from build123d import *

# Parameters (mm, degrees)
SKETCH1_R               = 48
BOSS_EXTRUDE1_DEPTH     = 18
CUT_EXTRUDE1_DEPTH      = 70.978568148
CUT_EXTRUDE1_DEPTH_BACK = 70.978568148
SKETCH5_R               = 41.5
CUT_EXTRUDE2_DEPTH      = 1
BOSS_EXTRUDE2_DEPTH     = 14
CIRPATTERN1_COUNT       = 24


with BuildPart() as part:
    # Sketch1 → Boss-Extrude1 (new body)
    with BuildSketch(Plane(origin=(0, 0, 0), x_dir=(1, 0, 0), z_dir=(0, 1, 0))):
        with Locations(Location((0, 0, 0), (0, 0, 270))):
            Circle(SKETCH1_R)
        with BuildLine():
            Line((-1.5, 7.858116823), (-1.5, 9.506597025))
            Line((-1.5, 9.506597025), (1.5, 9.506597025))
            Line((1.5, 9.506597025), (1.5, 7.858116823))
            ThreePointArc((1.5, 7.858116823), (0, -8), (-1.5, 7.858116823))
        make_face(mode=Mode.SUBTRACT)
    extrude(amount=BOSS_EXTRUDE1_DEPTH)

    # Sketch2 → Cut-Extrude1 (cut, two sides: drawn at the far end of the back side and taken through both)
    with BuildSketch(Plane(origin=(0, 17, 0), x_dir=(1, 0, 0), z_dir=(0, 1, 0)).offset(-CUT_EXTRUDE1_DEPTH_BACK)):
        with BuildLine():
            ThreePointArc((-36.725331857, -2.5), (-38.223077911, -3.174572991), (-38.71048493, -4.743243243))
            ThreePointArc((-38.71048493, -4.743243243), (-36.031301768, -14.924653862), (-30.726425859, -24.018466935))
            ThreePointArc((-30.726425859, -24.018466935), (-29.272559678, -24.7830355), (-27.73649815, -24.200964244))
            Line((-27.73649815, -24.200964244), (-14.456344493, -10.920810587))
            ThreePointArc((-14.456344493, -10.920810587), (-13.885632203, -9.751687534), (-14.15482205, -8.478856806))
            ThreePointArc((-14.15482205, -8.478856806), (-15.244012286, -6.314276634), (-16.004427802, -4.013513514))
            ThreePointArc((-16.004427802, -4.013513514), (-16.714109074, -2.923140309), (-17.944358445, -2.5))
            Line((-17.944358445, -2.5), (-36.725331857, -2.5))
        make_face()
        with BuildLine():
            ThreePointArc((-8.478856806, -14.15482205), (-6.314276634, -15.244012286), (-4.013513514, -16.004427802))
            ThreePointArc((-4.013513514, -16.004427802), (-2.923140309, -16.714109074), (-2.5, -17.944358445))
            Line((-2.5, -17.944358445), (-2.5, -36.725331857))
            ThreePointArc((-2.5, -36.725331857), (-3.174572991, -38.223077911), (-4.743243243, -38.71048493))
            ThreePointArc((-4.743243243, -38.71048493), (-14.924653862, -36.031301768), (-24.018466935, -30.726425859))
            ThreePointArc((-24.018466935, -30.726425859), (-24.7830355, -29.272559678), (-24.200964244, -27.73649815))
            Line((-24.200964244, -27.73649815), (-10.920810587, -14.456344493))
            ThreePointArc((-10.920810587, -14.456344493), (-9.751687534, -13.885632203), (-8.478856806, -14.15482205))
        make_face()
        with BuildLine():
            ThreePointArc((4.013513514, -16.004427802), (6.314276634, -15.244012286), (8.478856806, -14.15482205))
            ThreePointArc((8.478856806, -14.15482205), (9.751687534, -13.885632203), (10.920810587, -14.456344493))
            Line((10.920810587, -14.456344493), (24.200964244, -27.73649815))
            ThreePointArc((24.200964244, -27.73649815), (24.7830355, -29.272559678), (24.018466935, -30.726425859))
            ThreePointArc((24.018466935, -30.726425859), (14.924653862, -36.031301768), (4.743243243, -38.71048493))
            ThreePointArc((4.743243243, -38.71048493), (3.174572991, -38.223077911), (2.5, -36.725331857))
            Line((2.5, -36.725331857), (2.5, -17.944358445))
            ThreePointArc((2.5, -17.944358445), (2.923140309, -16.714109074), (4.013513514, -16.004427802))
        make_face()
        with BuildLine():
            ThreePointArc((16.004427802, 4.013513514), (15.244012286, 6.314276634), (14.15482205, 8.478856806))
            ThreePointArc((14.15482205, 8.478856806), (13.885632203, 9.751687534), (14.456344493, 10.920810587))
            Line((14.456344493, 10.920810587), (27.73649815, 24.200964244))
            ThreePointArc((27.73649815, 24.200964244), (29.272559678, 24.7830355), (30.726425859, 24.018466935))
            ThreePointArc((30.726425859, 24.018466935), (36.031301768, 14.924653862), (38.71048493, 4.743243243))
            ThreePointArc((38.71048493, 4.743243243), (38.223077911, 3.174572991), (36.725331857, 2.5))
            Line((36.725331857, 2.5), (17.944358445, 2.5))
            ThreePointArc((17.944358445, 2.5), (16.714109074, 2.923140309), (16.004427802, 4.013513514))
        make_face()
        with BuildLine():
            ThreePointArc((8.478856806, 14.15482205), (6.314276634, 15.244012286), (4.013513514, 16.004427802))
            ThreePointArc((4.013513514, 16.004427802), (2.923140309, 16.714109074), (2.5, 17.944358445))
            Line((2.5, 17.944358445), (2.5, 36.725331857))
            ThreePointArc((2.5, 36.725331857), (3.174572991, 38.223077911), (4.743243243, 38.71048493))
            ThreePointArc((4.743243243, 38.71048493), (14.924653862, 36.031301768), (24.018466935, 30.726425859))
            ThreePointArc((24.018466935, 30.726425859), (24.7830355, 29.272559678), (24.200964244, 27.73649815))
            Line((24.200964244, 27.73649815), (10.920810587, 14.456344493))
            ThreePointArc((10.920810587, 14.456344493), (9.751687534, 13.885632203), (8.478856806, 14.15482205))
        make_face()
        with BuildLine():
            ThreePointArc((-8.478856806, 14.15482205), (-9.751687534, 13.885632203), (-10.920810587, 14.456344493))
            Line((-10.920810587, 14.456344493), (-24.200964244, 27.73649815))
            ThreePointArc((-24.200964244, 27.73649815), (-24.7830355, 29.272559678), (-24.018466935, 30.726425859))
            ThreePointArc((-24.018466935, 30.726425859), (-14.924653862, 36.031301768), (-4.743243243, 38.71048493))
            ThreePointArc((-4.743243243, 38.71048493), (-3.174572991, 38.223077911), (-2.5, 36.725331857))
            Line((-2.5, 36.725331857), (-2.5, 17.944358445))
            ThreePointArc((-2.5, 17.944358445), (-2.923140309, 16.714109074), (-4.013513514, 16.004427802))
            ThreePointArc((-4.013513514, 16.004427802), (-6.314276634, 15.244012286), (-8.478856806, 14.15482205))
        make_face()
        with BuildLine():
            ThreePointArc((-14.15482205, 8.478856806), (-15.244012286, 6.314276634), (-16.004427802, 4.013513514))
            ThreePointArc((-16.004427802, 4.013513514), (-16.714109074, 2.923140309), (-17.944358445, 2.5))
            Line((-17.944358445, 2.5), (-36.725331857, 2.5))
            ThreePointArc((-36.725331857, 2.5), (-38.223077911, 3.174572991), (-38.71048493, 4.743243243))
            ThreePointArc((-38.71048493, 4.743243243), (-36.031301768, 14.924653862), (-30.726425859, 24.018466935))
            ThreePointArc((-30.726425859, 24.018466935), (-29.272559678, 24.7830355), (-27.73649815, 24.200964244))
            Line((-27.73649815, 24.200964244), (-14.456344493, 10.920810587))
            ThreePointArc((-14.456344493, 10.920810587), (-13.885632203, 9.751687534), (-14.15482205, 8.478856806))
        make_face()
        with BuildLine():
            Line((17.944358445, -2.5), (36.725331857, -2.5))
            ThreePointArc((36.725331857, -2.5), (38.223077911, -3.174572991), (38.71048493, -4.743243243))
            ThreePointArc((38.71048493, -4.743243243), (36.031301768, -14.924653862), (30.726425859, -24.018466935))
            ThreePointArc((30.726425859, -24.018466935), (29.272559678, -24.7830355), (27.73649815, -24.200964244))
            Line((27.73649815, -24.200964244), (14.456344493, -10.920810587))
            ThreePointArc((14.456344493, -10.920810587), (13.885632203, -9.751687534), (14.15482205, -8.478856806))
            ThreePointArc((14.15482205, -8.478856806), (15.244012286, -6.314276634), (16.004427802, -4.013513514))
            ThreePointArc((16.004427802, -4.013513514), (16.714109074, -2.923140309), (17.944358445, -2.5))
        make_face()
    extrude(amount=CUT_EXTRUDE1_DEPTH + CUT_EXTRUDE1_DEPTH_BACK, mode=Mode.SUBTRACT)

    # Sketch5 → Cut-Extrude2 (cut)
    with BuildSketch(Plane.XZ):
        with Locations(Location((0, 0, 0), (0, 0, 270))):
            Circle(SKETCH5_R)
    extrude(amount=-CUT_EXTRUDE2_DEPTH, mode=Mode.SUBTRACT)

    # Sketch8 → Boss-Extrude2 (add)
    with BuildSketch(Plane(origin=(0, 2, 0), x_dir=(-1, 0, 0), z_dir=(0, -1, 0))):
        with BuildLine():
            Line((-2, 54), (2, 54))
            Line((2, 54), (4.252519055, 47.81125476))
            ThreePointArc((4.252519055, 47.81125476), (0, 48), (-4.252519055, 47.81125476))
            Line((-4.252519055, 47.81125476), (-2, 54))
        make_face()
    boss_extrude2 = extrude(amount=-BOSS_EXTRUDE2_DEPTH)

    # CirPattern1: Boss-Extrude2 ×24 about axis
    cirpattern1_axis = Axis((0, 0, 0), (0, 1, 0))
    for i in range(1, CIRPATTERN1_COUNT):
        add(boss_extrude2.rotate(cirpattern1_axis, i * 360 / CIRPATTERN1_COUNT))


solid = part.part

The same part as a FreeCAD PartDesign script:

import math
import FreeCAD as App
import Part
import Sketcher
Q = App.Units.Quantity

doc = App.newDocument("Part")
body = doc.addObject("PartDesign::Body", "Body")

sketch1 = doc.addObject("Sketcher::SketchObject", "Sketch")
body.addObject(sketch1)
sketch1.AttachmentSupport = (doc.XZ_Plane, [""])
sketch1.MapMode = "FlatFace"
sketch1.addGeometry(Part.Circle(App.Vector(0, 0, 0), App.Vector(0, 0, 1), 48), False)
sketch1.addGeometry(Part.ArcOfCircle(Part.Circle(App.Vector(0, 0, 0), App.Vector(0, 0, 1), 8), math.radians(-79), math.radians(259)), False)
sketch1.addGeometry(Part.LineSegment(App.Vector(-1.5, -7.9, 0), App.Vector(-1.5, -9.5, 0)), False)
sketch1.addGeometry(Part.LineSegment(App.Vector(-1.5, -9.5, 0), App.Vector(1.5, -9.5, 0)), False)
sketch1.addGeometry(Part.LineSegment(App.Vector(1.5, -9.5, 0), App.Vector(1.5, -7.9, 0)), False)
sketch1.addConstraint(Sketcher.Constraint("Coincident", 1, 2, 2, 1))
sketch1.addConstraint(Sketcher.Constraint("Coincident", 2, 2, 3, 1))
sketch1.addConstraint(Sketcher.Constraint("Coincident", 3, 2, 4, 1))
sketch1.addConstraint(Sketcher.Constraint("Coincident", 4, 2, 1, 1))
sketch1.addConstraint(Sketcher.Constraint("Vertical", 2))
sketch1.addConstraint(Sketcher.Constraint("Horizontal", 3))
sketch1.addConstraint(Sketcher.Constraint("Vertical", 4))
sketch1.addConstraint(Sketcher.Constraint("Coincident", 0, 3, -1, 1))
sketch1.addConstraint(Sketcher.Constraint("Coincident", 1, 3, -1, 1))
sketch1.addConstraint(Sketcher.Constraint("Horizontal", 1, 2, 4, 2))
sketch1.addConstraint(Sketcher.Constraint("Diameter", 0, Q("96 mm")))
sketch1.addConstraint(Sketcher.Constraint("Radius", 1, Q("8 mm")))
sketch1.addConstraint(Sketcher.Constraint("DistanceX", 3, 1, 3, 2, Q("3 mm")))
sketch1.addConstraint(Sketcher.Constraint("DistanceY", 2, 2, 2, 1, Q("1.64848 mm")))
pad1 = doc.addObject("PartDesign::Pad", "Pad")
body.addObject(pad1)
pad1.Profile = sketch1
pad1.Length = 18
pad1.Reversed = True

sketch2 = doc.addObject("Sketcher::SketchObject", "Sketch001")
body.addObject(sketch2)
sketch2.AttachmentSupport = (doc.XZ_Plane, [""])
sketch2.MapMode = "FlatFace"
sketch2.AttachmentOffset = App.Placement(App.Vector(0, 0, -17), App.Rotation())
sketch2.addGeometry(Part.ArcOfCircle(Part.Circle(App.Vector(-36.7, 4.5, 0), App.Vector(0, 0, 1), 2), math.radians(173), math.radians(270)), False)
sketch2.addGeometry(Part.ArcOfCircle(Part.Circle(App.Vector(0, 0, 0), App.Vector(0, 0, 1), 39), math.radians(142), math.radians(173)), False)
sketch2.addGeometry(Part.ArcOfCircle(Part.Circle(App.Vector(-29.2, 22.8, 0), App.Vector(0, 0, 1), 2), math.radians(45), math.radians(142)), False)
sketch2.addGeometry(Part.LineSegment(App.Vector(-27.7, 24.2, 0), App.Vector(-14.5, 10.9, 0)), False)
sketch2.addGeometry(Part.ArcOfCircle(Part.Circle(App.Vector(-15.9, 9.5, 0), App.Vector(0, 0, 1), 2), math.radians(-31), math.radians(45)), False)
sketch2.addGeometry(Part.ArcOfCircle(Part.Circle(App.Vector(0, 0, 0), App.Vector(0, 0, 1), 16.5), math.radians(149.08), math.radians(165.92)), False)
sketch2.addGeometry(Part.ArcOfCircle(Part.Circle(App.Vector(-17.9, 4.5, 0), App.Vector(0, 0, 1), 2), math.radians(-90), math.radians(-14)), False)
sketch2.addGeometry(Part.LineSegment(App.Vector(-17.9, 2.5, 0), App.Vector(-36.7, 2.5, 0)), False)
sketch2.addGeometry(Part.ArcOfCircle(Part.Circle(App.Vector(0, 0, 0), App.Vector(0, 0, 1), 16.5), math.radians(104.08), math.radians(120.92)), False)
sketch2.addGeometry(Part.ArcOfCircle(Part.Circle(App.Vector(-9.5, 15.9, 0), App.Vector(0, 0, 1), 2), math.radians(-135), math.radians(-59)), False)
sketch2.addGeometry(Part.LineSegment(App.Vector(-10.9, 14.5, 0), App.Vector(-24.2, 27.7, 0)), False)
sketch2.addGeometry(Part.ArcOfCircle(Part.Circle(App.Vector(-22.8, 29.2, 0), App.Vector(0, 0, 1), 2), math.radians(128), math.radians(225)), False)
sketch2.addGeometry(Part.ArcOfCircle(Part.Circle(App.Vector(0, 0, 0), App.Vector(0, 0, 1), 39), math.radians(97), math.radians(128)), False)
sketch2.addGeometry(Part.ArcOfCircle(Part.Circle(App.Vector(-4.5, 36.7, 0), App.Vector(0, 0, 1), 2), math.radians(0), math.radians(97)), False)
sketch2.addGeometry(Part.LineSegment(App.Vector(-2.5, 36.7, 0), App.Vector(-2.5, 17.9, 0)), False)
sketch2.addGeometry(Part.ArcOfCircle(Part.Circle(App.Vector(-4.5, 17.9, 0), App.Vector(0, 0, 1), 2), math.radians(-76), math.radians(0)), False)
sketch2.addGeometry(Part.ArcOfCircle(Part.Circle(App.Vector(0, 0, 0), App.Vector(0, 0, 1), 16.5), math.radians(59.08), math.radians(75.92)), False)
sketch2.addGeometry(Part.ArcOfCircle(Part.Circle(App.Vector(4.5, 17.9, 0), App.Vector(0, 0, 1), 2), math.radians(180), math.radians(256)), False)
sketch2.addGeometry(Part.LineSegment(App.Vector(2.5, 17.9, 0), App.Vector(2.5, 36.7, 0)), False)
sketch2.addGeometry(Part.ArcOfCircle(Part.Circle(App.Vector(4.5, 36.7, 0), App.Vector(0, 0, 1), 2), math.radians(83), math.radians(180)), False)
sketch2.addGeometry(Part.ArcOfCircle(Part.Circle(App.Vector(0, 0, 0), App.Vector(0, 0, 1), 39), math.radians(52), math.radians(83)), False)
sketch2.addGeometry(Part.ArcOfCircle(Part.Circle(App.Vector(22.8, 29.2, 0), App.Vector(0, 0, 1), 2), math.radians(-45), math.radians(52)), False)
sketch2.addGeometry(Part.LineSegment(App.Vector(24.2, 27.7, 0), App.Vector(10.9, 14.5, 0)), False)
sketch2.addGeometry(Part.ArcOfCircle(Part.Circle(App.Vector(9.5, 15.9, 0), App.Vector(0, 0, 1), 2), math.radians(-121), math.radians(-45)), False)
sketch2.addGeometry(Part.ArcOfCircle(Part.Circle(App.Vector(0, 0, 0), App.Vector(0, 0, 1), 16.5), math.radians(-30.92), math.radians(-14.08)), False)
sketch2.addGeometry(Part.ArcOfCircle(Part.Circle(App.Vector(17.9, -4.5, 0), App.Vector(0, 0, 1), 2), math.radians(90), math.radians(166)), False)
sketch2.addGeometry(Part.LineSegment(App.Vector(17.9, -2.5, 0), App.Vector(36.7, -2.5, 0)), False)
sketch2.addGeometry(Part.ArcOfCircle(Part.Circle(App.Vector(36.7, -4.5, 0), App.Vector(0, 0, 1), 2), math.radians(-7), math.radians(90)), False)
sketch2.addGeometry(Part.ArcOfCircle(Part.Circle(App.Vector(0, 0, 0), App.Vector(0, 0, 1), 39), math.radians(-38), math.radians(-7)), False)
sketch2.addGeometry(Part.ArcOfCircle(Part.Circle(App.Vector(29.2, -22.8, 0), App.Vector(0, 0, 1), 2), math.radians(-135), math.radians(-38)), False)
sketch2.addGeometry(Part.LineSegment(App.Vector(27.7, -24.2, 0), App.Vector(14.5, -10.9, 0)), False)
sketch2.addGeometry(Part.ArcOfCircle(Part.Circle(App.Vector(15.9, -9.5, 0), App.Vector(0, 0, 1), 2), math.radians(149), math.radians(225)), False)
sketch2.addGeometry(Part.ArcOfCircle(Part.Circle(App.Vector(0, 0, 0), App.Vector(0, 0, 1), 16.5), math.radians(-75.92), math.radians(-59.08)), False)
sketch2.addGeometry(Part.ArcOfCircle(Part.Circle(App.Vector(9.5, -15.9, 0), App.Vector(0, 0, 1), 2), math.radians(45), math.radians(121)), False)
sketch2.addGeometry(Part.LineSegment(App.Vector(10.9, -14.5, 0), App.Vector(24.2, -27.7, 0)), False)
sketch2.addGeometry(Part.ArcOfCircle(Part.Circle(App.Vector(22.8, -29.2, 0), App.Vector(0, 0, 1), 2), math.radians(-52), math.radians(45)), False)
sketch2.addGeometry(Part.ArcOfCircle(Part.Circle(App.Vector(0, 0, 0), App.Vector(0, 0, 1), 39), math.radians(-83), math.radians(-52)), False)
sketch2.addGeometry(Part.ArcOfCircle(Part.Circle(App.Vector(4.5, -36.7, 0), App.Vector(0, 0, 1), 2), math.radians(-180), math.radians(-83)), False)
sketch2.addGeometry(Part.LineSegment(App.Vector(2.5, -36.7, 0), App.Vector(2.5, -17.9, 0)), False)
sketch2.addGeometry(Part.ArcOfCircle(Part.Circle(App.Vector(4.5, -17.9, 0), App.Vector(0, 0, 1), 2), math.radians(104), math.radians(180)), False)
sketch2.addGeometry(Part.ArcOfCircle(Part.Circle(App.Vector(-9.5, -15.9, 0), App.Vector(0, 0, 1), 2), math.radians(59), math.radians(135)), False)
sketch2.addGeometry(Part.ArcOfCircle(Part.Circle(App.Vector(0, 0, 0), App.Vector(0, 0, 1), 16.5), math.radians(-120.92), math.radians(-104.08)), False)
sketch2.addGeometry(Part.ArcOfCircle(Part.Circle(App.Vector(-4.5, -17.9, 0), App.Vector(0, 0, 1), 2), math.radians(0), math.radians(76)), False)
sketch2.addGeometry(Part.LineSegment(App.Vector(-2.5, -17.9, 0), App.Vector(-2.5, -36.7, 0)), False)
sketch2.addGeometry(Part.ArcOfCircle(Part.Circle(App.Vector(-4.5, -36.7, 0), App.Vector(0, 0, 1), 2), math.radians(-97), math.radians(0)), False)
sketch2.addGeometry(Part.ArcOfCircle(Part.Circle(App.Vector(0, 0, 0), App.Vector(0, 0, 1), 39), math.radians(-128), math.radians(-97)), False)
sketch2.addGeometry(Part.ArcOfCircle(Part.Circle(App.Vector(-22.8, -29.2, 0), App.Vector(0, 0, 1), 2), math.radians(135), math.radians(232)), False)
sketch2.addGeometry(Part.LineSegment(App.Vector(-24.2, -27.7, 0), App.Vector(-10.9, -14.5, 0)), False)
sketch2.addGeometry(Part.ArcOfCircle(Part.Circle(App.Vector(0, 0, 0), App.Vector(0, 0, 1), 16.5), math.radians(-165.92), math.radians(-149.08)), False)
sketch2.addGeometry(Part.ArcOfCircle(Part.Circle(App.Vector(-15.9, -9.5, 0), App.Vector(0, 0, 1), 2), math.radians(-45), math.radians(31)), False)
sketch2.addGeometry(Part.LineSegment(App.Vector(-14.5, -10.9, 0), App.Vector(-27.7, -24.2, 0)), False)
sketch2.addGeometry(Part.ArcOfCircle(Part.Circle(App.Vector(-29.2, -22.8, 0), App.Vector(0, 0, 1), 2), math.radians(-142), math.radians(-45)), False)
sketch2.addGeometry(Part.ArcOfCircle(Part.Circle(App.Vector(0, 0, 0), App.Vector(0, 0, 1), 39), math.radians(-173), math.radians(-142)), False)
sketch2.addGeometry(Part.ArcOfCircle(Part.Circle(App.Vector(-36.7, -4.5, 0), App.Vector(0, 0, 1), 2), math.radians(90), math.radians(187)), False)
sketch2.addGeometry(Part.LineSegment(App.Vector(-36.7, -2.5, 0), App.Vector(-17.9, -2.5, 0)), False)
sketch2.addGeometry(Part.ArcOfCircle(Part.Circle(App.Vector(-17.9, -4.5, 0), App.Vector(0, 0, 1), 2), math.radians(14), math.radians(90)), False)
sketch2.addGeometry(Part.LineSegment(App.Vector(36.7, 2.5, 0), App.Vector(17.9, 2.5, 0)), False)
sketch2.addGeometry(Part.ArcOfCircle(Part.Circle(App.Vector(17.9, 4.5, 0), App.Vector(0, 0, 1), 2), math.radians(-166), math.radians(-90)), False)
sketch2.addGeometry(Part.ArcOfCircle(Part.Circle(App.Vector(0, 0, 0), App.Vector(0, 0, 1), 16.5), math.radians(14.08), math.radians(30.92)), False)
sketch2.addGeometry(Part.ArcOfCircle(Part.Circle(App.Vector(15.9, 9.5, 0), App.Vector(0, 0, 1), 2), math.radians(135), math.radians(211)), False)
sketch2.addGeometry(Part.LineSegment(App.Vector(14.5, 10.9, 0), App.Vector(27.7, 24.2, 0)), False)
sketch2.addGeometry(Part.ArcOfCircle(Part.Circle(App.Vector(29.2, 22.8, 0), App.Vector(0, 0, 1), 2), math.radians(38), math.radians(135)), False)
sketch2.addGeometry(Part.ArcOfCircle(Part.Circle(App.Vector(0, 0, 0), App.Vector(0, 0, 1), 39), math.radians(7), math.radians(38)), False)
sketch2.addGeometry(Part.ArcOfCircle(Part.Circle(App.Vector(36.7, 4.5, 0), App.Vector(0, 0, 1), 2), math.radians(-90), math.radians(7)), False)
sketch2.addConstraint(Sketcher.Constraint("Tangent", 0, 1, 1, 2))
sketch2.addConstraint(Sketcher.Constraint("Tangent", 1, 1, 2, 2))
sketch2.addConstraint(Sketcher.Constraint("Tangent", 2, 1, 3, 1))
sketch2.addConstraint(Sketcher.Constraint("Tangent", 3, 2, 4, 2))
sketch2.addConstraint(Sketcher.Constraint("Tangent", 4, 1, 5, 1))
sketch2.addConstraint(Sketcher.Constraint("Tangent", 5, 2, 6, 2))
sketch2.addConstraint(Sketcher.Constraint("Tangent", 6, 1, 7, 1))
sketch2.addConstraint(Sketcher.Constraint("Tangent", 7, 2, 0, 2))
sketch2.addConstraint(Sketcher.Constraint("Tangent", 8, 2, 9, 2))
sketch2.addConstraint(Sketcher.Constraint("Tangent", 9, 1, 10, 1))
sketch2.addConstraint(Sketcher.Constraint("Tangent", 10, 2, 11, 2))
sketch2.addConstraint(Sketcher.Constraint("Tangent", 11, 1, 12, 2))
sketch2.addConstraint(Sketcher.Constraint("Tangent", 12, 1, 13, 2))
sketch2.addConstraint(Sketcher.Constraint("Tangent", 13, 1, 14, 1))
sketch2.addConstraint(Sketcher.Constraint("Tangent", 14, 2, 15, 2))
sketch2.addConstraint(Sketcher.Constraint("Tangent", 15, 1, 8, 1))
sketch2.addConstraint(Sketcher.Constraint("Tangent", 16, 2, 17, 2))
sketch2.addConstraint(Sketcher.Constraint("Tangent", 17, 1, 18, 1))
sketch2.addConstraint(Sketcher.Constraint("Tangent", 18, 2, 19, 2))
sketch2.addConstraint(Sketcher.Constraint("Tangent", 19, 1, 20, 2))
sketch2.addConstraint(Sketcher.Constraint("Tangent", 20, 1, 21, 2))
sketch2.addConstraint(Sketcher.Constraint("Tangent", 21, 1, 22, 1))
sketch2.addConstraint(Sketcher.Constraint("Tangent", 22, 2, 23, 2))
sketch2.addConstraint(Sketcher.Constraint("Tangent", 23, 1, 16, 1))
sketch2.addConstraint(Sketcher.Constraint("Tangent", 24, 2, 25, 2))
sketch2.addConstraint(Sketcher.Constraint("Tangent", 25, 1, 26, 1))
sketch2.addConstraint(Sketcher.Constraint("Tangent", 26, 2, 27, 2))
sketch2.addConstraint(Sketcher.Constraint("Tangent", 27, 1, 28, 2))
sketch2.addConstraint(Sketcher.Constraint("Tangent", 28, 1, 29, 2))
sketch2.addConstraint(Sketcher.Constraint("Tangent", 29, 1, 30, 1))
sketch2.addConstraint(Sketcher.Constraint("Tangent", 30, 2, 31, 2))
sketch2.addConstraint(Sketcher.Constraint("Tangent", 31, 1, 24, 1))
sketch2.addConstraint(Sketcher.Constraint("Tangent", 32, 2, 33, 2))
sketch2.addConstraint(Sketcher.Constraint("Tangent", 33, 1, 34, 1))
sketch2.addConstraint(Sketcher.Constraint("Tangent", 34, 2, 35, 2))
sketch2.addConstraint(Sketcher.Constraint("Tangent", 35, 1, 36, 2))
sketch2.addConstraint(Sketcher.Constraint("Tangent", 36, 1, 37, 2))
sketch2.addConstraint(Sketcher.Constraint("Tangent", 37, 1, 38, 1))
sketch2.addConstraint(Sketcher.Constraint("Tangent", 38, 2, 39, 2))
sketch2.addConstraint(Sketcher.Constraint("Tangent", 39, 1, 32, 1))
sketch2.addConstraint(Sketcher.Constraint("Tangent", 40, 1, 41, 1))
sketch2.addConstraint(Sketcher.Constraint("Tangent", 41, 2, 42, 2))
sketch2.addConstraint(Sketcher.Constraint("Tangent", 42, 1, 43, 1))
sketch2.addConstraint(Sketcher.Constraint("Tangent", 43, 2, 44, 2))
sketch2.addConstraint(Sketcher.Constraint("Tangent", 44, 1, 45, 2))
sketch2.addConstraint(Sketcher.Constraint("Tangent", 45, 1, 46, 2))
sketch2.addConstraint(Sketcher.Constraint("Tangent", 46, 1, 47, 1))
sketch2.addConstraint(Sketcher.Constraint("Tangent", 47, 2, 40, 2))
sketch2.addConstraint(Sketcher.Constraint("Tangent", 48, 2, 49, 2))
sketch2.addConstraint(Sketcher.Constraint("Tangent", 49, 1, 50, 1))
sketch2.addConstraint(Sketcher.Constraint("Tangent", 50, 2, 51, 2))
sketch2.addConstraint(Sketcher.Constraint("Tangent", 51, 1, 52, 2))
sketch2.addConstraint(Sketcher.Constraint("Tangent", 52, 1, 53, 2))
sketch2.addConstraint(Sketcher.Constraint("Tangent", 53, 1, 54, 1))
sketch2.addConstraint(Sketcher.Constraint("Tangent", 54, 2, 55, 2))
sketch2.addConstraint(Sketcher.Constraint("Tangent", 55, 1, 48, 1))
sketch2.addConstraint(Sketcher.Constraint("Tangent", 56, 2, 57, 2))
sketch2.addConstraint(Sketcher.Constraint("Tangent", 57, 1, 58, 1))
sketch2.addConstraint(Sketcher.Constraint("Tangent", 58, 2, 59, 2))
sketch2.addConstraint(Sketcher.Constraint("Tangent", 59, 1, 60, 1))
sketch2.addConstraint(Sketcher.Constraint("Tangent", 60, 2, 61, 2))
sketch2.addConstraint(Sketcher.Constraint("Tangent", 61, 1, 62, 2))
sketch2.addConstraint(Sketcher.Constraint("Tangent", 62, 1, 63, 2))
sketch2.addConstraint(Sketcher.Constraint("Tangent", 63, 1, 56, 1))
sketch2.addConstraint(Sketcher.Constraint("Horizontal", 7))
sketch2.addConstraint(Sketcher.Constraint("Vertical", 14))
sketch2.addConstraint(Sketcher.Constraint("Vertical", 18))
sketch2.addConstraint(Sketcher.Constraint("Horizontal", 26))
sketch2.addConstraint(Sketcher.Constraint("Vertical", 38))
sketch2.addConstraint(Sketcher.Constraint("Vertical", 43))
sketch2.addConstraint(Sketcher.Constraint("Horizontal", 54))
sketch2.addConstraint(Sketcher.Constraint("Horizontal", 56))
sketch2.addConstraint(Sketcher.Constraint("Coincident", 1, 3, -1, 1))
sketch2.addConstraint(Sketcher.Constraint("Coincident", 5, 3, -1, 1))
sketch2.addConstraint(Sketcher.Constraint("Coincident", 8, 3, -1, 1))
sketch2.addConstraint(Sketcher.Constraint("Coincident", 12, 3, -1, 1))
sketch2.addConstraint(Sketcher.Constraint("Coincident", 16, 3, -1, 1))
sketch2.addConstraint(Sketcher.Constraint("Coincident", 20, 3, -1, 1))
sketch2.addConstraint(Sketcher.Constraint("Coincident", 24, 3, -1, 1))
sketch2.addConstraint(Sketcher.Constraint("Coincident", 28, 3, -1, 1))
sketch2.addConstraint(Sketcher.Constraint("Coincident", 32, 3, -1, 1))
sketch2.addConstraint(Sketcher.Constraint("Coincident", 36, 3, -1, 1))
sketch2.addConstraint(Sketcher.Constraint("Coincident", 41, 3, -1, 1))
sketch2.addConstraint(Sketcher.Constraint("Coincident", 45, 3, -1, 1))
sketch2.addConstraint(Sketcher.Constraint("Coincident", 48, 3, -1, 1))
sketch2.addConstraint(Sketcher.Constraint("Coincident", 52, 3, -1, 1))
sketch2.addConstraint(Sketcher.Constraint("Coincident", 58, 3, -1, 1))
sketch2.addConstraint(Sketcher.Constraint("Coincident", 62, 3, -1, 1))
sketch2.addConstraint(Sketcher.Constraint("Equal", 0, 2))
sketch2.addConstraint(Sketcher.Constraint("Equal", 2, 4))
sketch2.addConstraint(Sketcher.Constraint("Equal", 4, 6))
sketch2.addConstraint(Sketcher.Constraint("Equal", 5, 8))
sketch2.addConstraint(Sketcher.Constraint("Equal", 6, 9))
sketch2.addConstraint(Sketcher.Constraint("Equal", 9, 11))
sketch2.addConstraint(Sketcher.Constraint("Equal", 1, 12))
sketch2.addConstraint(Sketcher.Constraint("Equal", 11, 13))
sketch2.addConstraint(Sketcher.Constraint("Equal", 13, 15))
sketch2.addConstraint(Sketcher.Constraint("Equal", 8, 16))
sketch2.addConstraint(Sketcher.Constraint("Equal", 15, 17))
sketch2.addConstraint(Sketcher.Constraint("Equal", 17, 19))
sketch2.addConstraint(Sketcher.Constraint("Equal", 12, 20))
sketch2.addConstraint(Sketcher.Constraint("Equal", 19, 21))
sketch2.addConstraint(Sketcher.Constraint("Equal", 21, 23))
sketch2.addConstraint(Sketcher.Constraint("Equal", 16, 24))
sketch2.addConstraint(Sketcher.Constraint("Equal", 23, 25))
sketch2.addConstraint(Sketcher.Constraint("Equal", 25, 27))
sketch2.addConstraint(Sketcher.Constraint("Equal", 20, 28))
sketch2.addConstraint(Sketcher.Constraint("Equal", 27, 29))
sketch2.addConstraint(Sketcher.Constraint("Equal", 29, 31))
sketch2.addConstraint(Sketcher.Constraint("Equal", 24, 32))
sketch2.addConstraint(Sketcher.Constraint("Equal", 31, 33))
sketch2.addConstraint(Sketcher.Constraint("Equal", 33, 35))
sketch2.addConstraint(Sketcher.Constraint("Equal", 28, 36))
sketch2.addConstraint(Sketcher.Constraint("Equal", 35, 37))
sketch2.addConstraint(Sketcher.Constraint("Equal", 37, 39))
sketch2.addConstraint(Sketcher.Constraint("Equal", 39, 40))
sketch2.addConstraint(Sketcher.Constraint("Equal", 32, 41))
sketch2.addConstraint(Sketcher.Constraint("Equal", 40, 42))
sketch2.addConstraint(Sketcher.Constraint("Equal", 42, 44))
sketch2.addConstraint(Sketcher.Constraint("Equal", 36, 45))
sketch2.addConstraint(Sketcher.Constraint("Equal", 44, 46))
sketch2.addConstraint(Sketcher.Constraint("Equal", 41, 48))
sketch2.addConstraint(Sketcher.Constraint("Equal", 46, 49))
sketch2.addConstraint(Sketcher.Constraint("Equal", 49, 51))
sketch2.addConstraint(Sketcher.Constraint("Equal", 45, 52))
sketch2.addConstraint(Sketcher.Constraint("Equal", 51, 53))
sketch2.addConstraint(Sketcher.Constraint("Equal", 53, 55))
sketch2.addConstraint(Sketcher.Constraint("Equal", 55, 57))
sketch2.addConstraint(Sketcher.Constraint("Equal", 48, 58))
sketch2.addConstraint(Sketcher.Constraint("Equal", 57, 59))
sketch2.addConstraint(Sketcher.Constraint("Equal", 59, 61))
sketch2.addConstraint(Sketcher.Constraint("Equal", 52, 62))
sketch2.addConstraint(Sketcher.Constraint("Equal", 61, 63))
sketch2.addConstraint(Sketcher.Constraint("Symmetric", 2, 1, 29, 1, -1, 1))
sketch2.addConstraint(Sketcher.Constraint("Symmetric", 9, 1, 33, 1, -1, 1))
sketch2.addConstraint(Sketcher.Constraint("Symmetric", 21, 1, 46, 1, -1, 1))
sketch2.addConstraint(Sketcher.Constraint("Symmetric", 49, 1, 59, 1, -1, 1))
sketch2.addConstraint(Sketcher.Constraint("Symmetric", 10, 2, 21, 1, -2))
sketch2.addConstraint(Sketcher.Constraint("Symmetric", 30, 2, 49, 1, -2))
sketch2.addConstraint(Sketcher.Constraint("Parallel", 3, 10))
sketch2.addConstraint(Sketcher.Constraint("Perpendicular", 10, 22))
sketch2.addConstraint(Sketcher.Constraint("Horizontal", 15, 3, 17, 3))
sketch2.addConstraint(Sketcher.Constraint("Horizontal", 39, 3, 42, 3))
sketch2.addConstraint(Sketcher.Constraint("Horizontal", 27, 3, 53, 3))
sketch2.addConstraint(Sketcher.Constraint("Horizontal", 6, 3, 57, 3))
sketch2.addConstraint(Sketcher.Constraint("Vertical", 19, 3, 37, 3))
sketch2.addConstraint(Sketcher.Constraint("Vertical", 0, 3, 53, 3))
sketch2.addConstraint(Sketcher.Constraint("Equal", 56, 14))
sketch2.addConstraint(Sketcher.Constraint("Equal", 3, 10))
sketch2.addConstraint(Sketcher.Constraint("Radius", 0, Q("2 mm")))
sketch2.addConstraint(Sketcher.Constraint("Radius", 1, Q("39 mm")))
sketch2.addConstraint(Sketcher.Constraint("Radius", 5, Q("16.5 mm")))
sketch2.addConstraint(Sketcher.Constraint("DistanceY", -1, 1, 0, 3, Q("4.5 mm")))
sketch2.addConstraint(Sketcher.Constraint("DistanceX", 2, 1, -1, 1, Q("27.736498 mm")))
pocket1 = doc.addObject("PartDesign::Pocket", "Pocket")
body.addObject(pocket1)
pocket1.Profile = sketch2
pocket1.Type = "ThroughAll"
pocket1.Midplane = True

sketch3 = doc.addObject("Sketcher::SketchObject", "Sketch002")
body.addObject(sketch3)
sketch3.AttachmentSupport = (doc.XZ_Plane, [""])
sketch3.MapMode = "FlatFace"
sketch3.addGeometry(Part.Circle(App.Vector(0, 0, 0), App.Vector(0, 0, 1), 42), False)
sketch3.addConstraint(Sketcher.Constraint("Coincident", 0, 3, -1, 1))
sketch3.addConstraint(Sketcher.Constraint("Diameter", 0, Q("83 mm")))
pocket2 = doc.addObject("PartDesign::Pocket", "Pocket001")
body.addObject(pocket2)
pocket2.Profile = sketch3
pocket2.Length = 1

sketch4 = doc.addObject("Sketcher::SketchObject", "Sketch003")
body.addObject(sketch4)
sketch4.AttachmentSupport = (doc.XZ_Plane, [""])
sketch4.MapMode = "FlatFace"
sketch4.AttachmentOffset = App.Placement(App.Vector(0, 0, -2), App.Rotation())
sketch4.addGeometry(Part.LineSegment(App.Vector(-2, -54, 0), App.Vector(2, -54, 0)), False)
sketch4.addGeometry(Part.LineSegment(App.Vector(2, -54, 0), App.Vector(4.3, -47.8, 0)), False)
sketch4.addGeometry(Part.ArcOfCircle(Part.Circle(App.Vector(0, 0, 0), App.Vector(0, 0, 1), 48), math.radians(-95.08), math.radians(-84.92)), False)
sketch4.addGeometry(Part.LineSegment(App.Vector(-4.3, -47.8, 0), App.Vector(-2, -54, 0)), False)
sketch4.addConstraint(Sketcher.Constraint("Coincident", 0, 2, 1, 1))
sketch4.addConstraint(Sketcher.Constraint("Coincident", 1, 2, 2, 2))
sketch4.addConstraint(Sketcher.Constraint("Coincident", 2, 1, 3, 1))
sketch4.addConstraint(Sketcher.Constraint("Coincident", 3, 2, 0, 1))
sketch4.addConstraint(Sketcher.Constraint("Horizontal", 0))
sketch4.addConstraint(Sketcher.Constraint("Coincident", 2, 3, -1, 1))
sketch4.addConstraint(Sketcher.Constraint("Horizontal", 1, 2, 2, 1))
sketch4.addConstraint(Sketcher.Constraint("Equal", 1, 3))
sketch4.addConstraint(Sketcher.Constraint("Radius", 2, Q("48 mm")))
sketch4.addConstraint(Sketcher.Constraint("DistanceX", 0, 1, 0, 2, Q("4 mm")))
sketch4.addConstraint(Sketcher.Constraint("Angle", 1, Q("70 deg")))
sketch4.addConstraint(Sketcher.Constraint("DistanceY", 0, 2, -1, 1, Q("54 mm")))
pad2 = doc.addObject("PartDesign::Pad", "Pad001")
body.addObject(pad2)
pad2.Profile = sketch4
pad2.Length = 14
pad2.Reversed = True
doc.recompute()

polarpattern = doc.addObject("PartDesign::PolarPattern", "PolarPattern")
body.addObject(polarpattern)
polarpattern.Originals = [pad2]
polarpattern.Axis = (doc.Y_Axis, [""])
polarpattern.Angle = 360
polarpattern.Occurrences = 24
body.Tip = polarpattern

doc.recompute()
